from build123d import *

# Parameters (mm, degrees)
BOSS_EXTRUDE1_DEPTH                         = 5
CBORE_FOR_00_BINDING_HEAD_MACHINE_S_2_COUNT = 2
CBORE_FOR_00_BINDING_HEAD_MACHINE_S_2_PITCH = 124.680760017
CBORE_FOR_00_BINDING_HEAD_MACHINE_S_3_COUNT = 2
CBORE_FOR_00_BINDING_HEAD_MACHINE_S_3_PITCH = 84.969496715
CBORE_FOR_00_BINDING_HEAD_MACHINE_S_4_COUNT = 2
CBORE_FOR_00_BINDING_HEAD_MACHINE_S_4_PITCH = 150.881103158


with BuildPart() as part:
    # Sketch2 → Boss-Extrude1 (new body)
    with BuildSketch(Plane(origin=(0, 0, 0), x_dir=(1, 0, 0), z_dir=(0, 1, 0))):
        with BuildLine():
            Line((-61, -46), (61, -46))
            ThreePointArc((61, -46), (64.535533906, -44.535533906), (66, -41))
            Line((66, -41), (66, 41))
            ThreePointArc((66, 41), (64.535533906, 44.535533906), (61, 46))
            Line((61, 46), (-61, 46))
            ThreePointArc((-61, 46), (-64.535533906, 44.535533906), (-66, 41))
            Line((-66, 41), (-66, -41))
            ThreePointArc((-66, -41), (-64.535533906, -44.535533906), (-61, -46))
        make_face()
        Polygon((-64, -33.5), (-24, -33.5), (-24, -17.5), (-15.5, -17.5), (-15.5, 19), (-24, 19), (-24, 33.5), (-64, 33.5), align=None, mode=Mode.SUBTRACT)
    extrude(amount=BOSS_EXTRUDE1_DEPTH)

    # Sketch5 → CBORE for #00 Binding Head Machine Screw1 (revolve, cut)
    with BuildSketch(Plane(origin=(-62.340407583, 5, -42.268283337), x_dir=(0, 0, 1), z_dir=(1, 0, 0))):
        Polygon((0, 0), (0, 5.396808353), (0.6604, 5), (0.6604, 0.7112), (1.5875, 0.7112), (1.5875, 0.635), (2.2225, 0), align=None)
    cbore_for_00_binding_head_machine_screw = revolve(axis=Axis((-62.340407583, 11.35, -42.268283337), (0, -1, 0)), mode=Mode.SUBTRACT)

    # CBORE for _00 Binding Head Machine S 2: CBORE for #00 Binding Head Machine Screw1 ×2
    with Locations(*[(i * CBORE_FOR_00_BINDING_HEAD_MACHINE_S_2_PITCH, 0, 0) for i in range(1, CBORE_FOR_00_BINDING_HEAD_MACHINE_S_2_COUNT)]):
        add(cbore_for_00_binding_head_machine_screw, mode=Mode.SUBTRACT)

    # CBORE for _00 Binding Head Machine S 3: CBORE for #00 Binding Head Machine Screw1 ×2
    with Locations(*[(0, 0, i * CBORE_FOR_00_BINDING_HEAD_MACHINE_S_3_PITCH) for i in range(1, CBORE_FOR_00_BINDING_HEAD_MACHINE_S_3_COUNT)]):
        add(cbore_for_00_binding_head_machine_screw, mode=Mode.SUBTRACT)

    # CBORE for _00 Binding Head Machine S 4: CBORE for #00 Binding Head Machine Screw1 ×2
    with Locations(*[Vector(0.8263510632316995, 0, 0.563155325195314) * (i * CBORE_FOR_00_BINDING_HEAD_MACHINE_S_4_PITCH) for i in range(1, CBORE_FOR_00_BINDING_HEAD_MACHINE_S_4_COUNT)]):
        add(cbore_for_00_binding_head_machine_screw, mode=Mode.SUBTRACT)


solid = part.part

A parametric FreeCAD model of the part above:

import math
import FreeCAD as App
import Part
import Sketcher
Q = App.Units.Quantity

doc = App.newDocument("Part")
body = doc.addObject("PartDesign::Body", "Body")

# Sketch on XZ plane
sketch1 = body.newObject("Sketcher::SketchObject", "Sketch")
sketch1.AttachmentSupport = (doc.getObject("XZ_Plane"), [""])
sketch1.MapMode = "FlatFace"
sketch1.addGeometry(Part.LineSegment(App.Vector(-61, 46, 0), App.Vector(61, 46, 0)), False)
sketch1.addGeometry(Part.ArcOfCircle(Part.Circle(App.Vector(61, 41, 0), App.Vector(0, 0, 1), 5), math.radians(0), math.radians(90)), False)
sketch1.addGeometry(Part.LineSegment(App.Vector(66, 41, 0), App.Vector(66, -41, 0)), False)
sketch1.addGeometry(Part.ArcOfCircle(Part.Circle(App.Vector(61, -41, 0), App.Vector(0, 0, 1), 5), math.radians(-90), math.radians(0)), False)
sketch1.addGeometry(Part.LineSegment(App.Vector(61, -46, 0), App.Vector(-61, -46, 0)), False)
sketch1.addGeometry(Part.ArcOfCircle(Part.Circle(App.Vector(-61, -41, 0), App.Vector(0, 0, 1), 5), math.radians(180), math.radians(270)), False)
sketch1.addGeometry(Part.LineSegment(App.Vector(-66, -41, 0), App.Vector(-66, 41, 0)), False)
sketch1.addGeometry(Part.ArcOfCircle(Part.Circle(App.Vector(-61, 41, 0), App.Vector(0, 0, 1), 5), math.radians(90), math.radians(180)), False)
sketch1.addGeometry(Part.LineSegment(App.Vector(-24, 33.5, 0), App.Vector(-64, 33.5, 0)), False)
sketch1.addGeometry(Part.LineSegment(App.Vector(-64, 33.5, 0), App.Vector(-64, -33.5, 0)), False)
sketch1.addGeometry(Part.LineSegment(App.Vector(-64, -33.5, 0), App.Vector(-24, -33.5, 0)), False)
sketch1.addGeometry(Part.LineSegment(App.Vector(-24, -33.5, 0), App.Vector(-24, -19, 0)), False)
sketch1.addGeometry(Part.LineSegment(App.Vector(-24, -19, 0), App.Vector(-15.5, -19, 0)), False)
sketch1.addGeometry(Part.LineSegment(App.Vector(-15.5, -19, 0), App.Vector(-15.5, 17.5, 0)), False)
sketch1.addGeometry(Part.LineSegment(App.Vector(-15.5, 17.5, 0), App.Vector(-24, 17.5, 0)), False)
sketch1.addGeometry(Part.LineSegment(App.Vector(-24, 17.5, 0), App.Vector(-24, 33.5, 0)), False)
sketch1.addConstraint(Sketcher.Constraint("Tangent", 0, 2, 1, 2))
sketch1.addConstraint(Sketcher.Constraint("Tangent", 1, 1, 2, 1))
sketch1.addConstraint(Sketcher.Constraint("Tangent", 2, 2, 3, 2))
sketch1.addConstraint(Sketcher.Constraint("Tangent", 3, 1, 4, 1))
sketch1.addConstraint(Sketcher.Constraint("Tangent", 4, 2, 5, 2))
sketch1.addConstraint(Sketcher.Constraint("Tangent", 5, 1, 6, 1))
sketch1.addConstraint(Sketcher.Constraint("Tangent", 6, 2, 7, 2))
sketch1.addConstraint(Sketcher.Constraint("Tangent", 7, 1, 0, 1))
sketch1.addConstraint(Sketcher.Constraint("Coincident", 8, 2, 9, 1))
sketch1.addConstraint(Sketcher.Constraint("Coincident", 9, 2, 10, 1))
sketch1.addConstraint(Sketcher.Constraint("Coincident", 10, 2, 11, 1))
sketch1.addConstraint(Sketcher.Constraint("Coincident", 11, 2, 12, 1))
sketch1.addConstraint(Sketcher.Constraint("Coincident", 12, 2, 13, 1))
sketch1.addConstraint(Sketcher.Constraint("Coincident", 13, 2, 14, 1))
sketch1.addConstraint(Sketcher.Constraint("Coincident", 14, 2, 15, 1))
sketch1.addConstraint(Sketcher.Constraint("Coincident", 15, 2, 8, 1))
sketch1.addConstraint(Sketcher.Constraint("Horizontal", 0))
sketch1.addConstraint(Sketcher.Constraint("Vertical", 2))
sketch1.addConstraint(Sketcher.Constraint("Horizontal", 4))
sketch1.addConstraint(Sketcher.Constraint("Vertical", 6))
sketch1.addConstraint(Sketcher.Constraint("Horizontal", 8))
sketch1.addConstraint(Sketcher.Constraint("Vertical", 9))
sketch1.addConstraint(Sketcher.Constraint("Horizontal", 10))
sketch1.addConstraint(Sketcher.Constraint("Vertical", 11))
sketch1.addConstraint(Sketcher.Constraint("Horizontal", 12))
sketch1.addConstraint(Sketcher.Constraint("Vertical", 13))
sketch1.addConstraint(Sketcher.Constraint("Horizontal", 14))
sketch1.addConstraint(Sketcher.Constraint("Vertical", 15))
sketch1.addConstraint(Sketcher.Constraint("Equal", 1, 3))
sketch1.addConstraint(Sketcher.Constraint("Equal", 3, 5))
sketch1.addConstraint(Sketcher.Constraint("Equal", 5, 7))
sketch1.addConstraint(Sketcher.Constraint("Symmetric", 1, 3, 5, 3, -1, 1))
sketch1.addConstraint(Sketcher.Constraint("Symmetric", 10, 2, 15, 2, -1))
sketch1.addConstraint(Sketcher.Constraint("Radius", 1, Q("5 mm")))
sketch1.addConstraint(Sketcher.Constraint("DistanceX", 0, 1, 0, 2, Q("122 mm")))
sketch1.addConstraint(Sketcher.Constraint("DistanceX", 8, 2, 8, 1, Q("40 mm")))
sketch1.addConstraint(Sketcher.Constraint("DistanceY", 2, 2, 2, 1, Q("82 mm")))
sketch1.addConstraint(Sketcher.Constraint("DistanceY", 9, 2, 9, 1, Q("67 mm")))
sketch1.addConstraint(Sketcher.Constraint("DistanceY", 15, 1, 15, 2, Q("16 mm")))
sketch1.addConstraint(Sketcher.Constraint("DistanceX", 12, 1, 12, 2, Q("8.5 mm")))
sketch1.addConstraint(Sketcher.Constraint("DistanceY", 11, 1, 11, 2, Q("14.5 mm")))
sketch1.addConstraint(Sketcher.Constraint("DistanceX", 8, 2, -1, 1, Q("64 mm")))
pad1 = body.newObject("PartDesign::Pad", "Pad")
pad1.Profile = sketch1
pad1.Length = 5
pad1.Reversed = True

# Sketch on YZ plane
sketch2 = body.newObject("Sketcher::SketchObject", "Sketch001")
sketch2.AttachmentSupport = (doc.getObject("YZ_Plane"), [""])
sketch2.MapMode = "FlatFace"
sketch2.AttachmentOffset = App.Placement(App.Vector(0, 0, -62.340408), App.Rotation())
sketch2.addGeometry(Part.LineSegment(App.Vector(-0.396808, -42.268283, 0), App.Vector(5, -42.268283, 0)), False)
sketch2.addGeometry(Part.LineSegment(App.Vector(5, -42.268283, 0), App.Vector(5, -40.045783, 0)), False)
sketch2.addGeometry(Part.LineSegment(App.Vector(5, -40.045783, 0), App.Vector(4.365, -40.680783, 0)), False)
sketch2.addGeometry(Part.LineSegment(App.Vector(4.365, -40.680783, 0), App.Vector(4.2888, -40.680783, 0)), False)
sketch2.addGeometry(Part.LineSegment(App.Vector(4.2888, -40.680783, 0), App.Vector(4.2888, -41.607883, 0)), False)
sketch2.addGeometry(Part.LineSegment(App.Vector(4.2888, -41.607883, 0), App.Vector(0, -41.607883, 0)), False)
sketch2.addGeometry(Part.LineSegment(App.Vector(0, -41.607883, 0), App.Vector(-0.396808, -42.268283, 0)), False)
sketch2.addGeometry(Part.LineSegment(App.Vector(5, -42.268283, 0), App.Vector(-0.396808, -42.268283, 0)), True)  # axis
sketch2.addConstraint(Sketcher.Constraint("Coincident", 0, 2, 1, 1))
sketch2.addConstraint(Sketcher.Constraint("Coincident", 1, 2, 2, 1))
sketch2.addConstraint(Sketcher.Constraint("Coincident", 2, 2, 3, 1))
sketch2.addConstraint(Sketcher.Constraint("Coincident", 3, 2, 4, 1))
sketch2.addConstraint(Sketcher.Constraint("Coincident", 4, 2, 5, 1))
sketch2.addConstraint(Sketcher.Constraint("Coincident", 5, 2, 6, 1))
sketch2.addConstraint(Sketcher.Constraint("Coincident", 6, 2, 0, 1))
sketch2.addConstraint(Sketcher.Constraint("Horizontal", 0))
sketch2.addConstraint(Sketcher.Constraint("Vertical", 1))
sketch2.addConstraint(Sketcher.Constraint("Horizontal", 3))
sketch2.addConstraint(Sketcher.Constraint("Vertical", 4))
sketch2.addConstraint(Sketcher.Constraint("Horizontal", 5))
sketch2.addConstraint(Sketcher.Constraint("Horizontal", 7))
sketch2.addConstraint(Sketcher.Constraint("Coincident", 7, 1, 0, 2))
sketch2.addConstraint(Sketcher.Constraint("PointOnObject", 5, 2, -2))
sketch2.addConstraint(Sketcher.Constraint("Equal", 0, 7))
sketch2.addConstraint(Sketcher.Constraint("Angle", 2, Q("-135 deg")))
sketch2.addConstraint(Sketcher.Constraint("Angle", 6, Q("-121 deg")))
sketch2.addConstraint(Sketcher.Constraint("DistanceX", -1, 1, 0, 2, Q("5 mm")))
sketch2.addConstraint(Sketcher.Constraint("DistanceX", 3, 2, 3, 1, Q("0.0762 mm")))
sketch2.addConstraint(Sketcher.Constraint("DistanceX", 5, 2, 5, 1, Q("4.2888 mm")))
sketch2.addConstraint(Sketcher.Constraint("DistanceY", 1, 1, 1, 2, Q("2.2225 mm")))
sketch2.addConstraint(Sketcher.Constraint("DistanceY", 4, 2, 4, 1, Q("0.9271 mm")))
sketch2.addConstraint(Sketcher.Constraint("DistanceY", 0, 2, -1, 1, Q("42.268283 mm")))
groove = body.newObject("PartDesign::Groove", "Groove")
groove.Profile = sketch2
groove.ReferenceAxis = (sketch2, ["Axis0"])
groove.Angle = 360
doc.recompute()

linearpattern = body.newObject("PartDesign::LinearPattern", "LinearPattern")
linearpattern.Originals = [groove]
linearpattern.Direction = (doc.getObject("X_Axis"), [""])
linearpattern.Mode = "offset"
linearpattern.Offset = 124.68076
linearpattern.Occurrences = 2
body.Tip = linearpattern
doc.recompute()

linearpattern2 = body.newObject("PartDesign::LinearPattern", "LinearPattern001")
linearpattern2.Originals = [groove]
linearpattern2.Direction = (doc.getObject("Z_Axis"), [""])
linearpattern2.Mode = "offset"
linearpattern2.Offset = 84.969497
linearpattern2.Occurrences = 2
body.Tip = linearpattern2
doc.recompute()

datumline = body.newObject("PartDesign::Line", "DatumLine")
datumline.Placement = App.Placement(App.Vector(0, 0, 0), App.Rotation(App.Vector(0, 0, 1), App.Vector(0.826351063, 0, 0.563155325)))
linearpattern3 = body.newObject("PartDesign::LinearPattern", "LinearPattern002")
linearpattern3.Originals = [groove]
linearpattern3.Direction = (datumline, [""])
linearpattern3.Mode = "offset"
linearpattern3.Offset = 150.881103
linearpattern3.Occurrences = 2
body.Tip = linearpattern3

doc.recompute()
